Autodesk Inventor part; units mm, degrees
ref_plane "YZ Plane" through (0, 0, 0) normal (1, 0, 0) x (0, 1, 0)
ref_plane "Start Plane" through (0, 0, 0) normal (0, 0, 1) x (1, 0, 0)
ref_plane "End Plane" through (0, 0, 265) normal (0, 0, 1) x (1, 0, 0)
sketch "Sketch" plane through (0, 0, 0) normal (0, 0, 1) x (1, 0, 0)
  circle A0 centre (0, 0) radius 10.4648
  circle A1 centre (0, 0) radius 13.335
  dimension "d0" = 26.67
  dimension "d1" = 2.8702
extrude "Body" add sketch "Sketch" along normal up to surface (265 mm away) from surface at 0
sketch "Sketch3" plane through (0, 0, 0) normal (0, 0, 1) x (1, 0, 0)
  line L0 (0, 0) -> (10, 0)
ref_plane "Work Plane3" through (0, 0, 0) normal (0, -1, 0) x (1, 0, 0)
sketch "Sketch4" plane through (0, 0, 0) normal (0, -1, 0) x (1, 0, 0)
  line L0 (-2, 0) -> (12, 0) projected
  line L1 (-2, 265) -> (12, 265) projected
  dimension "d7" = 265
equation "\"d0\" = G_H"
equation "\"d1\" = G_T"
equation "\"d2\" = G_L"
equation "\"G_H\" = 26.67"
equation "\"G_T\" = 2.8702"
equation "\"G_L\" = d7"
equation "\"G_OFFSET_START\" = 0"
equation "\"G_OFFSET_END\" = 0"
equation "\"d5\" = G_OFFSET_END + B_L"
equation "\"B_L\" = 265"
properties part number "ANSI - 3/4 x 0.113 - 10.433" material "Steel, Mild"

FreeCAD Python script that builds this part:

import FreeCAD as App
import Part
import Sketcher
Q = App.Units.Quantity

doc = App.newDocument("Part")
body = doc.addObject("PartDesign::Body", "Body")

sketch1 = body.newObject("Sketcher::SketchObject", "Sketch")
sketch1.AttachmentSupport = (doc.getObject("XY_Plane"), [""])
sketch1.MapMode = "FlatFace"
sketch1.addGeometry([
    Part.Circle(App.Vector(0, 0, 0), App.Vector(0, 0, 1), 13),
    Part.Circle(App.Vector(0, 0, 0), App.Vector(0, 0, 1), 10),
], False)
sketch1.addConstraint([
    Sketcher.Constraint("Coincident", 0, 3, -1, 1),
    Sketcher.Constraint("Coincident", 1, 3, -1, 1),
    Sketcher.Constraint("Diameter", 0, Q("1.05 in")),
    Sketcher.Constraint("Diameter", 1, Q("0.824 in")),
])
pad1 = body.newObject("PartDesign::Pad", "Pad")
pad1.Profile = sketch1
pad1.Length = 265

doc.recompute()
